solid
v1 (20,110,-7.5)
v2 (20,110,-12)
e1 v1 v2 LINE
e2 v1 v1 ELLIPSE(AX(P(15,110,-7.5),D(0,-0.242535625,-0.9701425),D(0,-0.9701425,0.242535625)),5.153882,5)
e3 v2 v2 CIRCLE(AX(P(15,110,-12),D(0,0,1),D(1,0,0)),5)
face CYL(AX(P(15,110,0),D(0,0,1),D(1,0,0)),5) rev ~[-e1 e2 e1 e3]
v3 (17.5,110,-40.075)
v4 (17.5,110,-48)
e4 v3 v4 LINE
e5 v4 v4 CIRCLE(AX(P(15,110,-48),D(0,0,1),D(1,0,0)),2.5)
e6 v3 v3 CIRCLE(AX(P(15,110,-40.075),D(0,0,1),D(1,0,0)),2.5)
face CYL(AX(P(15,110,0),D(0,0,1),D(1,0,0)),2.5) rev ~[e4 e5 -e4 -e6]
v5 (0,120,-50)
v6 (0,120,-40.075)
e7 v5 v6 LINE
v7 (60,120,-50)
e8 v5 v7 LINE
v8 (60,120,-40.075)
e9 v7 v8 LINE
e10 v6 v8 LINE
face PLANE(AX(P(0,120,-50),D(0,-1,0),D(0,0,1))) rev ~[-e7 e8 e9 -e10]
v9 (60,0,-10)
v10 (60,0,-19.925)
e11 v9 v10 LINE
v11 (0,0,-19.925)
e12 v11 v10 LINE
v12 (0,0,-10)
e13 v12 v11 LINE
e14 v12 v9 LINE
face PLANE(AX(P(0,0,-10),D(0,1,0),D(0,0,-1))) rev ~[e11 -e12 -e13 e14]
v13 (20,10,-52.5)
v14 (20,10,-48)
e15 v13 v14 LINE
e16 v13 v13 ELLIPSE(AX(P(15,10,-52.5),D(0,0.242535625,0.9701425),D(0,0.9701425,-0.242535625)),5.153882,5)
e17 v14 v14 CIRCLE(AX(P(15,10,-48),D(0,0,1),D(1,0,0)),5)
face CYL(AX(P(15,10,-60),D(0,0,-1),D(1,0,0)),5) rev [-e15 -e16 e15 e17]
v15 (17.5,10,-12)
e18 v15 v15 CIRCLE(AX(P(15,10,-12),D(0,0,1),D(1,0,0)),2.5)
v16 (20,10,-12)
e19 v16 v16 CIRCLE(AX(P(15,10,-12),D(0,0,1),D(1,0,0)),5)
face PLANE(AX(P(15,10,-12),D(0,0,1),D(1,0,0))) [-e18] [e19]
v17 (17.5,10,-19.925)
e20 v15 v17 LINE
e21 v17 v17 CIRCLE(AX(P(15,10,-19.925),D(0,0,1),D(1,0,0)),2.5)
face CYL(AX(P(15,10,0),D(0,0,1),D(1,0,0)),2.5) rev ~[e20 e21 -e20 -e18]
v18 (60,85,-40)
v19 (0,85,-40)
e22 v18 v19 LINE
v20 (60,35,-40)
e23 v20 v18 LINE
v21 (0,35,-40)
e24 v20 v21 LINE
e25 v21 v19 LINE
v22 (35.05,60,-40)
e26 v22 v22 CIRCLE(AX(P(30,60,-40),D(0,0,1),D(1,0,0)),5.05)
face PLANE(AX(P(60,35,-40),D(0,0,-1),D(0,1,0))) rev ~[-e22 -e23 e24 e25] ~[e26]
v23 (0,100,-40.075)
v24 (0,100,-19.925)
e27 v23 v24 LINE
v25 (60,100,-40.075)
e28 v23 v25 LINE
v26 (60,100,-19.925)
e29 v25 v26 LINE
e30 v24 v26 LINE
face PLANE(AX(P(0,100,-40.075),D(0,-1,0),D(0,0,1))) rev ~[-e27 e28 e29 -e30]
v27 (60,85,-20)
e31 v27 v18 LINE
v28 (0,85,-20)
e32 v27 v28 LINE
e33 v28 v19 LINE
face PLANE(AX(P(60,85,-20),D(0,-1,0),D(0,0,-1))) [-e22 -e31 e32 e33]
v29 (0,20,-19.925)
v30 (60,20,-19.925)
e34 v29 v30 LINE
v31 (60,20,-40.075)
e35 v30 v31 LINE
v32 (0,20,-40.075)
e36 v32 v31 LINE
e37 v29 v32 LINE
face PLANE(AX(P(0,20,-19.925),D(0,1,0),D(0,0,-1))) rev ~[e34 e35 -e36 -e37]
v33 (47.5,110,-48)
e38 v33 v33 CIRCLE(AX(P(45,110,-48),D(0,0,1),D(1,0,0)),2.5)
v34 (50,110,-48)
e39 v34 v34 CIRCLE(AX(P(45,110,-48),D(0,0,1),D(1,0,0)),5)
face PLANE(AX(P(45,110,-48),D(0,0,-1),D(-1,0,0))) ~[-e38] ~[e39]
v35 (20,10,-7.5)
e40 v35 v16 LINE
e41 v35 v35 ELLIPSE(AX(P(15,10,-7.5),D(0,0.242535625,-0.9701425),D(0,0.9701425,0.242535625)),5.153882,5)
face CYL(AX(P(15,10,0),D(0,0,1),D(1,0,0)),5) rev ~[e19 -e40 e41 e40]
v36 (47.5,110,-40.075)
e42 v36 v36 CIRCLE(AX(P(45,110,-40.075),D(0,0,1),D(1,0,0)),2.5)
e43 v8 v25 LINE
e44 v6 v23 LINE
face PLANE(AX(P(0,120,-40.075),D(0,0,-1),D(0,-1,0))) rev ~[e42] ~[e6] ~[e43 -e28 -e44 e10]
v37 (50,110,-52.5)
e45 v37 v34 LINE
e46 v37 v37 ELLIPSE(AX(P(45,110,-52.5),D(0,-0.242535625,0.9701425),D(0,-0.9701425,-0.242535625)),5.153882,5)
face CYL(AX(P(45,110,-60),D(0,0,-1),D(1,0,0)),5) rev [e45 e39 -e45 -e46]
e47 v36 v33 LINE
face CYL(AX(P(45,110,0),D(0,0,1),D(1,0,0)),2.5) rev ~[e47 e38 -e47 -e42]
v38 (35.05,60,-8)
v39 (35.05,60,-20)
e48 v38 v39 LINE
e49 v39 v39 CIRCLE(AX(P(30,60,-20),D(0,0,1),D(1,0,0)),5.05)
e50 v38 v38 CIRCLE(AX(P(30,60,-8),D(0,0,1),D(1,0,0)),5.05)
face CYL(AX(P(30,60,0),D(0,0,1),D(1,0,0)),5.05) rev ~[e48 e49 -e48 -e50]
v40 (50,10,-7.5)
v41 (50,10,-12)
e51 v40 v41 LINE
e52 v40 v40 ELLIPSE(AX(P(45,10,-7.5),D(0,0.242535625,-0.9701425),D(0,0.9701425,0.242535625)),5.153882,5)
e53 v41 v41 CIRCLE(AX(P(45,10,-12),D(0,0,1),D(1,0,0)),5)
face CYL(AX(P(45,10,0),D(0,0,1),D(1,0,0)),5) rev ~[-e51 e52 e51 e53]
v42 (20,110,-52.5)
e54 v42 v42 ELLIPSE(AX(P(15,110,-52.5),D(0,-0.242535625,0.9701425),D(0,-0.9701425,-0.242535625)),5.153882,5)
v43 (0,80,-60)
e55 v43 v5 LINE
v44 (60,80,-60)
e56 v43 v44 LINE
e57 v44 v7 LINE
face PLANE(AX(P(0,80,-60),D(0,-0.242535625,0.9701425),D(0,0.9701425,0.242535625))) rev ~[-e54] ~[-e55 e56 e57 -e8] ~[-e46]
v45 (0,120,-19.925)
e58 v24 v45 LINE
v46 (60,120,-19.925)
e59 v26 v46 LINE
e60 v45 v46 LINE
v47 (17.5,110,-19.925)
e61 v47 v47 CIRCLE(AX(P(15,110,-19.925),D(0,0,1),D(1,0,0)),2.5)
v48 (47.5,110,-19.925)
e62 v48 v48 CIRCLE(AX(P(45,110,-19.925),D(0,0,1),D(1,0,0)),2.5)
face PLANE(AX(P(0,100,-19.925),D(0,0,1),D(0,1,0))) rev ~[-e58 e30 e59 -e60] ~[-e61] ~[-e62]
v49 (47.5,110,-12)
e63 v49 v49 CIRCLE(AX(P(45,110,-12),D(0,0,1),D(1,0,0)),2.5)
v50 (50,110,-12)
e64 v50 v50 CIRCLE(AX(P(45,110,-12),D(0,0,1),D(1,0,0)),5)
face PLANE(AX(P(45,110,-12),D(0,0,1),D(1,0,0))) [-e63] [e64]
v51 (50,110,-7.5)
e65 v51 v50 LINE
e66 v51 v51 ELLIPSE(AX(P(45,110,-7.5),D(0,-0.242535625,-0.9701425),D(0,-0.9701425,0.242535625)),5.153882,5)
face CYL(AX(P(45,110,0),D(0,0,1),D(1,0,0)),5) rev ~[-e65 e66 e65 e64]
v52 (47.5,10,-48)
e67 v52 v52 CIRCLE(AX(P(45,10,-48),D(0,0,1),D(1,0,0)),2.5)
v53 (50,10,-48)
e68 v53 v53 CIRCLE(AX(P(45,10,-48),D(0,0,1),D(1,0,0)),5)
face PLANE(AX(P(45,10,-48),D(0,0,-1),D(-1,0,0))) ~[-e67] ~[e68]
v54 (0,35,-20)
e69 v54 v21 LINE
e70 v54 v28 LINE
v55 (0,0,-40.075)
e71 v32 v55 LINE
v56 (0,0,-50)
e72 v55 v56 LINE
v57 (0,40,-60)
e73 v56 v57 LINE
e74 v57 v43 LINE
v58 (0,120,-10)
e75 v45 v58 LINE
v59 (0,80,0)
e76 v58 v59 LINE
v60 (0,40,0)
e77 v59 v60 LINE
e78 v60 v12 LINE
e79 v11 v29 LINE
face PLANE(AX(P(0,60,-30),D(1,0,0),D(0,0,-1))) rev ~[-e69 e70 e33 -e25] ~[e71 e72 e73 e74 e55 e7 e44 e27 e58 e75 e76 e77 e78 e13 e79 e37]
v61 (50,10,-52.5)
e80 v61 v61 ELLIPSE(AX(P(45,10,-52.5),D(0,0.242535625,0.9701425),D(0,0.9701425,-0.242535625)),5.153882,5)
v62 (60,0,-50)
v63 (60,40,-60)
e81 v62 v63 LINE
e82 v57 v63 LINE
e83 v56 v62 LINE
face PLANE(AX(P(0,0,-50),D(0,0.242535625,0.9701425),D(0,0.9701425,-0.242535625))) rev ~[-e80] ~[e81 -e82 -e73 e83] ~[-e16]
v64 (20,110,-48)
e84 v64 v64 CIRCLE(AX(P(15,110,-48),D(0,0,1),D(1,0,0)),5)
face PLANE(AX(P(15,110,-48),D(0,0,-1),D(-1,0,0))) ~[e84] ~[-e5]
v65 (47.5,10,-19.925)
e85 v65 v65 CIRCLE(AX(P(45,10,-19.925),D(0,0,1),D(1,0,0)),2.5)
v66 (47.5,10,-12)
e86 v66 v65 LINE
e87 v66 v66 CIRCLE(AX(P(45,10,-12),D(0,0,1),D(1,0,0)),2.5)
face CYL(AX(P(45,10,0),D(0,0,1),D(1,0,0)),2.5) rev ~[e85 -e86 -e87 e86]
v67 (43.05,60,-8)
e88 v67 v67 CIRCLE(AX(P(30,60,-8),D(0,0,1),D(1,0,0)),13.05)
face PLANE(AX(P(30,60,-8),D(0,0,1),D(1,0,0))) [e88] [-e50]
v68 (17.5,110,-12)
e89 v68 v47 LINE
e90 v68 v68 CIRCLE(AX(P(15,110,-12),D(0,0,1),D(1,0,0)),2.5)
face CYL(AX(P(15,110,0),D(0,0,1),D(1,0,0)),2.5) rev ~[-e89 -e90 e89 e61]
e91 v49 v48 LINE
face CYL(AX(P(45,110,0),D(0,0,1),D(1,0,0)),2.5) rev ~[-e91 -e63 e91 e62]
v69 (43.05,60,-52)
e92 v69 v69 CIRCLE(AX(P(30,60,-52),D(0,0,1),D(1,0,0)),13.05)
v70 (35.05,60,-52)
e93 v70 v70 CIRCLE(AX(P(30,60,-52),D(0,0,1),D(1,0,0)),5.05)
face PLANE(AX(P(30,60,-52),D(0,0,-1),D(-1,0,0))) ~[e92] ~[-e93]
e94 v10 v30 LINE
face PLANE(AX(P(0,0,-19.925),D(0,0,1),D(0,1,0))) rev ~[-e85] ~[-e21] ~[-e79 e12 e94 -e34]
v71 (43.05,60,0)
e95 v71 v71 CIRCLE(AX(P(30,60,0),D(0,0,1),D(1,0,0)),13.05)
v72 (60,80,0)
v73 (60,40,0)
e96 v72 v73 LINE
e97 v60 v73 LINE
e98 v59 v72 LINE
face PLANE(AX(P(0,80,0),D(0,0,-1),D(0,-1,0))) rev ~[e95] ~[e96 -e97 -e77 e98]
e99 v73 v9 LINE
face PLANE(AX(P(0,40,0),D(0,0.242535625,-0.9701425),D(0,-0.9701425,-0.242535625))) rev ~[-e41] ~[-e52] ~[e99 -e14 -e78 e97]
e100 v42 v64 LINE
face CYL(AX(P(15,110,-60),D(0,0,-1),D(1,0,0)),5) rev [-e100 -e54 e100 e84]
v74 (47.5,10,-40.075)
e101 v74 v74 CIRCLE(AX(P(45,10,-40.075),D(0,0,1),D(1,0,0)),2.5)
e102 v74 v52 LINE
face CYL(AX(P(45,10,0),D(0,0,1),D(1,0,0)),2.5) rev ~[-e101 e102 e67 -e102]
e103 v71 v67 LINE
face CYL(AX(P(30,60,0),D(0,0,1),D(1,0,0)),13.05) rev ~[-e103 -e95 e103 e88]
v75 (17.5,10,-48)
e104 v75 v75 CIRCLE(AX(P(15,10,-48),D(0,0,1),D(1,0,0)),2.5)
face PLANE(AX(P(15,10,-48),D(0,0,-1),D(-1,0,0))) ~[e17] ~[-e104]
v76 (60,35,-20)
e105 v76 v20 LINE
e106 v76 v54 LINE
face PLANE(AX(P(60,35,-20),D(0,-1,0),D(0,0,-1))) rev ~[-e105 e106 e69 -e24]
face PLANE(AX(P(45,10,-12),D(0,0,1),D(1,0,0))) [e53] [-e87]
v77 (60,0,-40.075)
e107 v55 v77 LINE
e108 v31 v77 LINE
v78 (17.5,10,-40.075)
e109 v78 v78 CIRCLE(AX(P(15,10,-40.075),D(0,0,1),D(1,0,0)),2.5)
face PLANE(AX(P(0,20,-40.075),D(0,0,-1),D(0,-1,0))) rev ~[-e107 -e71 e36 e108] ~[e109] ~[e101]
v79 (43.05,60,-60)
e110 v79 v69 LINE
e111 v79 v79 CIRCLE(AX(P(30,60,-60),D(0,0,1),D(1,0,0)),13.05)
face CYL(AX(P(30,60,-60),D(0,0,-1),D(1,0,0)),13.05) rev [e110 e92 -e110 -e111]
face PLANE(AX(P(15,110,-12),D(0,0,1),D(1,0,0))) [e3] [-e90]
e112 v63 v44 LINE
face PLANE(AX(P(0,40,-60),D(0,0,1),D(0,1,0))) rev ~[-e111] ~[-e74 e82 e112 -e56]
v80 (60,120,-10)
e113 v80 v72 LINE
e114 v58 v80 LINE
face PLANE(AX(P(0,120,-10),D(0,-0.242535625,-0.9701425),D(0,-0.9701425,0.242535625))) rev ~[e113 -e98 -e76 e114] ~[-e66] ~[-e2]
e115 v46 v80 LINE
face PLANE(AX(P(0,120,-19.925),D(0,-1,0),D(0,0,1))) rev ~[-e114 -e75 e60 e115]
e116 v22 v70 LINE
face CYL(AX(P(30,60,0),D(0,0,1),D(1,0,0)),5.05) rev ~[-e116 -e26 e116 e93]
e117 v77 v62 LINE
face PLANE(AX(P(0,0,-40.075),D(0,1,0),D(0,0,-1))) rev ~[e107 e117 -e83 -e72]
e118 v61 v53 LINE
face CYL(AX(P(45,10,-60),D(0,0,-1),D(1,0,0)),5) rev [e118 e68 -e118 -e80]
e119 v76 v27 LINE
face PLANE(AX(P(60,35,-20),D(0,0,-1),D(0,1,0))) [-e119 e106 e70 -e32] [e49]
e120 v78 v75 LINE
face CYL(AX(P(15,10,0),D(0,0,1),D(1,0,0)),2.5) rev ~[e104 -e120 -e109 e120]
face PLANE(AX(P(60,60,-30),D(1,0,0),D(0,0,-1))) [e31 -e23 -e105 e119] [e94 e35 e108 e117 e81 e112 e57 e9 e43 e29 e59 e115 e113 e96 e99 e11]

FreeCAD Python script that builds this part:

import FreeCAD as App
import Part
import Sketcher

V = App.Vector
Q = App.Units.Quantity


def add_polygon(sketch, points):
    """Adds a closed chain of lines whose ends are joined by coincident constraints."""
    first, n = sketch.GeometryCount, len(points)
    for a, b in zip(points, points[1:] + points[:1]):
        sketch.addGeometry(Part.LineSegment(App.Vector(*a, 0), App.Vector(*b, 0)), False)
    for i in range(n):
        sketch.addConstraint(Sketcher.Constraint("Coincident", first + i, 2, first + (i + 1) % n, 1))

doc = App.newDocument("Part")
body = doc.addObject("PartDesign::Body", "Body")

# Sketch on YZ plane
sketch1 = body.newObject("Sketcher::SketchObject", "Sketch")
sketch1.AttachmentSupport = (doc.getObject("YZ_Plane"), [""])
sketch1.MapMode = "FlatFace"
add_polygon(sketch1, [(40, 0), (0, -10), (0, -19.925), (20, -19.925), (20, -40.075), (0, -40.075), (0, -50), (40, -60), (80, -60), (120, -50), (120, -40.075), (100, -40.075), (100, -19.925), (120, -19.925), (120, -10), (80, 0)])  # lines 0-15
sketch1.addConstraint([
    Sketcher.Constraint("Vertical", 1),
    Sketcher.Constraint("Horizontal", 2),
    Sketcher.Constraint("Vertical", 3),
    Sketcher.Constraint("Horizontal", 4),
    Sketcher.Constraint("Vertical", 5),
    Sketcher.Constraint("Horizontal", 7),
    Sketcher.Constraint("Vertical", 9),
    Sketcher.Constraint("Horizontal", 10),
    Sketcher.Constraint("Vertical", 11),
    Sketcher.Constraint("Horizontal", 12),
    Sketcher.Constraint("Vertical", 13),
    Sketcher.Constraint("Horizontal", 15),
    Sketcher.Constraint("PointOnObject", 0, 2, -2),
    Sketcher.Constraint("PointOnObject", 4, 2, -2),
    Sketcher.Constraint("PointOnObject", 14, 2, -1),
    Sketcher.Constraint("Parallel", 0, 8),
    Sketcher.Constraint("Parallel", 6, 14),
    Sketcher.Constraint("Horizontal", 5, 2, 8, 2),
    Sketcher.Constraint("Horizontal", 4, 2, 9, 2),
    Sketcher.Constraint("Horizontal", 2, 2, 11, 2),
    Sketcher.Constraint("Horizontal", 0, 2, 13, 2),
    Sketcher.Constraint("Vertical", 9, 2, 12, 2),
    Sketcher.Constraint("Vertical", 7, 2, 14, 2),
    Sketcher.Constraint("Vertical", 6, 2, 15, 2),
    Sketcher.Constraint("Equal", 4, 10),
    Sketcher.Constraint("Equal", 1, 5),
    Sketcher.Constraint("DistanceX", 2, 1, 2, 2, Q("20 mm")),
    Sketcher.Constraint("DistanceX", 7, 1, 7, 2, Q("40 mm")),
    Sketcher.Constraint("DistanceY", 0, 2, -1, 1, Q("10 mm")),
    Sketcher.Constraint("DistanceY", 5, 2, -1, 1, Q("50 mm")),
    Sketcher.Constraint("DistanceX", -1, 1, 6, 2, Q("40 mm")),
    Sketcher.Constraint("DistanceY", 3, 2, 3, 1, Q("20.15 mm")),
])
pad1 = body.newObject("PartDesign::Pad", "Pad")
pad1.Profile = sketch1
pad1.Length = 60

# Sketch on XY plane
sketch2 = body.newObject("Sketcher::SketchObject", "Sketch001")
sketch2.AttachmentSupport = (doc.getObject("XY_Plane"), [""])
sketch2.MapMode = "FlatFace"
sketch2.addGeometry(Part.Circle(V(30, 60, 0), V(0, 0, 1), 5.05), False)
sketch2.addConstraint([
    Sketcher.Constraint("Diameter", 0, Q("10.1 mm")),
    Sketcher.Constraint("DistanceX", -1, 1, 0, 3, Q("30 mm")),
    Sketcher.Constraint("DistanceY", -1, 1, 0, 3, Q("60 mm")),
])
pocket1 = body.newObject("PartDesign::Pocket", "Pocket")
pocket1.Profile = sketch2
pocket1.Length = 70

# Sketch on XY plane
sketch3 = body.newObject("Sketcher::SketchObject", "Sketch002")
sketch3.AttachmentSupport = (doc.getObject("XY_Plane"), [""])
sketch3.MapMode = "FlatFace"
sketch3.addGeometry(Part.Circle(V(30, 60, 0), V(0, 0, 1), 13.05), False)
sketch3.addConstraint([
    Sketcher.Constraint("Diameter", 0, Q("26.1 mm")),
    Sketcher.Constraint("DistanceX", -1, 1, 0, 3, Q("30 mm")),
    Sketcher.Constraint("DistanceY", -1, 1, 0, 3, Q("60 mm")),
])
pocket2 = body.newObject("PartDesign::Pocket", "Pocket001")
pocket2.Profile = sketch3
pocket2.Length = 8
doc.recompute()

datumplane = body.newObject("PartDesign::Plane", "DatumPlane")
datumplane.AttachmentSupport = (doc.getObject("XY_Plane"), [""])
datumplane.MapMode = "FlatFace"
datumplane.AttachmentOffset = App.Placement(V(0, 0, -30), App.Rotation())
mirrored = body.newObject("PartDesign::Mirrored", "Mirrored")
mirrored.Originals = [pocket2]
mirrored.MirrorPlane = (datumplane, [""])
body.Tip = mirrored

# Sketch on XY plane
sketch4 = body.newObject("Sketcher::SketchObject", "Sketch003")
sketch4.AttachmentSupport = (doc.getObject("XY_Plane"), [""])
sketch4.MapMode = "FlatFace"
sketch4.addGeometry([
    Part.Circle(V(45, 110, 0), V(0, 0, 1), 2.5),
    Part.Circle(V(15, 110, 0), V(0, 0, 1), 2.5),
    Part.Circle(V(45, 10, 0), V(0, 0, 1), 2.5),
    Part.Circle(V(15, 10, 0), V(0, 0, 1), 2.5),
], False)
sketch4.addConstraint([
    Sketcher.Constraint("Equal", 0, 1),
    Sketcher.Constraint("Equal", 1, 2),
    Sketcher.Constraint("Equal", 2, 3),
    Sketcher.Constraint("Horizontal", 0, 3, 1, 3),
    Sketcher.Constraint("Horizontal", 2, 3, 3, 3),
    Sketcher.Constraint("Vertical", 0, 3, 2, 3),
    Sketcher.Constraint("Vertical", 1, 3, 3, 3),
    Sketcher.Constraint("Diameter", 0, Q("5 mm")),
    Sketcher.Constraint("DistanceX", -1, 1, 0, 3, Q("45 mm")),
    Sketcher.Constraint("DistanceY", -1, 1, 0, 3, Q("110 mm")),
    Sketcher.Constraint("DistanceX", -1, 1, 1, 3, Q("15 mm")),
    Sketcher.Constraint("DistanceY", -1, 1, 2, 3, Q("10 mm")),
])
pocket3 = body.newObject("PartDesign::Pocket", "Pocket002")
pocket3.Profile = sketch4
pocket3.Type = "ThroughAll"

# Sketch on XY plane
sketch5 = body.newObject("Sketcher::SketchObject", "Sketch004")
sketch5.AttachmentSupport = (doc.getObject("XY_Plane"), [""])
sketch5.MapMode = "FlatFace"
sketch5.addGeometry([
    Part.Circle(V(45, 110, 0), V(0, 0, 1), 5),
    Part.Circle(V(15, 110, 0), V(0, 0, 1), 5),
    Part.Circle(V(15, 10, 0), V(0, 0, 1), 5),
    Part.Circle(V(45, 10, 0), V(0, 0, 1), 5),
], False)
sketch5.addConstraint([
    Sketcher.Constraint("Equal", 0, 1),
    Sketcher.Constraint("Equal", 1, 2),
    Sketcher.Constraint("Equal", 2, 3),
    Sketcher.Constraint("Horizontal", 0, 3, 1, 3),
    Sketcher.Constraint("Horizontal", 2, 3, 3, 3),
    Sketcher.Constraint("Vertical", 1, 3, 2, 3),
    Sketcher.Constraint("Vertical", 0, 3, 3, 3),
    Sketcher.Constraint("Diameter", 0, Q("10 mm")),
    Sketcher.Constraint("DistanceX", -1, 1, 0, 3, Q("45 mm")),
    Sketcher.Constraint("DistanceY", -1, 1, 0, 3, Q("110 mm")),
    Sketcher.Constraint("DistanceX", -1, 1, 1, 3, Q("15 mm")),
    Sketcher.Constraint("DistanceY", -1, 1, 2, 3, Q("10 mm")),
])
pocket4 = body.newObject("PartDesign::Pocket", "Pocket003")
pocket4.Profile = sketch5
pocket4.Length = 12
doc.recompute()

datumplane2 = body.newObject("PartDesign::Plane", "DatumPlane001")
datumplane2.AttachmentSupport = (doc.getObject("XY_Plane"), [""])
datumplane2.MapMode = "FlatFace"
datumplane2.AttachmentOffset = App.Placement(V(0, 0, -30), App.Rotation())
mirrored2 = body.newObject("PartDesign::Mirrored", "Mirrored001")
mirrored2.Originals = [pocket4]
mirrored2.MirrorPlane = (datumplane2, [""])
body.Tip = mirrored2

# Sketch on YZ plane
sketch6 = body.newObject("Sketcher::SketchObject", "Sketch005")
sketch6.AttachmentSupport = (doc.getObject("YZ_Plane"), [""])
sketch6.MapMode = "FlatFace"
sketch6.AttachmentOffset = App.Placement(V(0, 0, 60), App.Rotation())
add_polygon(sketch6, [(85, -20), (35, -20), (35, -40), (85, -40)])  # lines 0-3
sketch6.addConstraint([
    Sketcher.Constraint("Horizontal", 0),
    Sketcher.Constraint("Vertical", 1),
    Sketcher.Constraint("Horizontal", 2),
    Sketcher.Constraint("Vertical", 3),
    Sketcher.Constraint("DistanceX", 0, 2, 0, 1, Q("50 mm")),
    Sketcher.Constraint("DistanceY", 1, 2, 1, 1, Q("20 mm")),
    Sketcher.Constraint("DistanceX", -1, 1, 0, 2, Q("35 mm")),
    Sketcher.Constraint("DistanceY", 0, 2, -1, 1, Q("20 mm")),
])
pocket5 = body.newObject("PartDesign::Pocket", "Pocket004")
pocket5.Profile = sketch6
pocket5.Length = 81

doc.recompute()
